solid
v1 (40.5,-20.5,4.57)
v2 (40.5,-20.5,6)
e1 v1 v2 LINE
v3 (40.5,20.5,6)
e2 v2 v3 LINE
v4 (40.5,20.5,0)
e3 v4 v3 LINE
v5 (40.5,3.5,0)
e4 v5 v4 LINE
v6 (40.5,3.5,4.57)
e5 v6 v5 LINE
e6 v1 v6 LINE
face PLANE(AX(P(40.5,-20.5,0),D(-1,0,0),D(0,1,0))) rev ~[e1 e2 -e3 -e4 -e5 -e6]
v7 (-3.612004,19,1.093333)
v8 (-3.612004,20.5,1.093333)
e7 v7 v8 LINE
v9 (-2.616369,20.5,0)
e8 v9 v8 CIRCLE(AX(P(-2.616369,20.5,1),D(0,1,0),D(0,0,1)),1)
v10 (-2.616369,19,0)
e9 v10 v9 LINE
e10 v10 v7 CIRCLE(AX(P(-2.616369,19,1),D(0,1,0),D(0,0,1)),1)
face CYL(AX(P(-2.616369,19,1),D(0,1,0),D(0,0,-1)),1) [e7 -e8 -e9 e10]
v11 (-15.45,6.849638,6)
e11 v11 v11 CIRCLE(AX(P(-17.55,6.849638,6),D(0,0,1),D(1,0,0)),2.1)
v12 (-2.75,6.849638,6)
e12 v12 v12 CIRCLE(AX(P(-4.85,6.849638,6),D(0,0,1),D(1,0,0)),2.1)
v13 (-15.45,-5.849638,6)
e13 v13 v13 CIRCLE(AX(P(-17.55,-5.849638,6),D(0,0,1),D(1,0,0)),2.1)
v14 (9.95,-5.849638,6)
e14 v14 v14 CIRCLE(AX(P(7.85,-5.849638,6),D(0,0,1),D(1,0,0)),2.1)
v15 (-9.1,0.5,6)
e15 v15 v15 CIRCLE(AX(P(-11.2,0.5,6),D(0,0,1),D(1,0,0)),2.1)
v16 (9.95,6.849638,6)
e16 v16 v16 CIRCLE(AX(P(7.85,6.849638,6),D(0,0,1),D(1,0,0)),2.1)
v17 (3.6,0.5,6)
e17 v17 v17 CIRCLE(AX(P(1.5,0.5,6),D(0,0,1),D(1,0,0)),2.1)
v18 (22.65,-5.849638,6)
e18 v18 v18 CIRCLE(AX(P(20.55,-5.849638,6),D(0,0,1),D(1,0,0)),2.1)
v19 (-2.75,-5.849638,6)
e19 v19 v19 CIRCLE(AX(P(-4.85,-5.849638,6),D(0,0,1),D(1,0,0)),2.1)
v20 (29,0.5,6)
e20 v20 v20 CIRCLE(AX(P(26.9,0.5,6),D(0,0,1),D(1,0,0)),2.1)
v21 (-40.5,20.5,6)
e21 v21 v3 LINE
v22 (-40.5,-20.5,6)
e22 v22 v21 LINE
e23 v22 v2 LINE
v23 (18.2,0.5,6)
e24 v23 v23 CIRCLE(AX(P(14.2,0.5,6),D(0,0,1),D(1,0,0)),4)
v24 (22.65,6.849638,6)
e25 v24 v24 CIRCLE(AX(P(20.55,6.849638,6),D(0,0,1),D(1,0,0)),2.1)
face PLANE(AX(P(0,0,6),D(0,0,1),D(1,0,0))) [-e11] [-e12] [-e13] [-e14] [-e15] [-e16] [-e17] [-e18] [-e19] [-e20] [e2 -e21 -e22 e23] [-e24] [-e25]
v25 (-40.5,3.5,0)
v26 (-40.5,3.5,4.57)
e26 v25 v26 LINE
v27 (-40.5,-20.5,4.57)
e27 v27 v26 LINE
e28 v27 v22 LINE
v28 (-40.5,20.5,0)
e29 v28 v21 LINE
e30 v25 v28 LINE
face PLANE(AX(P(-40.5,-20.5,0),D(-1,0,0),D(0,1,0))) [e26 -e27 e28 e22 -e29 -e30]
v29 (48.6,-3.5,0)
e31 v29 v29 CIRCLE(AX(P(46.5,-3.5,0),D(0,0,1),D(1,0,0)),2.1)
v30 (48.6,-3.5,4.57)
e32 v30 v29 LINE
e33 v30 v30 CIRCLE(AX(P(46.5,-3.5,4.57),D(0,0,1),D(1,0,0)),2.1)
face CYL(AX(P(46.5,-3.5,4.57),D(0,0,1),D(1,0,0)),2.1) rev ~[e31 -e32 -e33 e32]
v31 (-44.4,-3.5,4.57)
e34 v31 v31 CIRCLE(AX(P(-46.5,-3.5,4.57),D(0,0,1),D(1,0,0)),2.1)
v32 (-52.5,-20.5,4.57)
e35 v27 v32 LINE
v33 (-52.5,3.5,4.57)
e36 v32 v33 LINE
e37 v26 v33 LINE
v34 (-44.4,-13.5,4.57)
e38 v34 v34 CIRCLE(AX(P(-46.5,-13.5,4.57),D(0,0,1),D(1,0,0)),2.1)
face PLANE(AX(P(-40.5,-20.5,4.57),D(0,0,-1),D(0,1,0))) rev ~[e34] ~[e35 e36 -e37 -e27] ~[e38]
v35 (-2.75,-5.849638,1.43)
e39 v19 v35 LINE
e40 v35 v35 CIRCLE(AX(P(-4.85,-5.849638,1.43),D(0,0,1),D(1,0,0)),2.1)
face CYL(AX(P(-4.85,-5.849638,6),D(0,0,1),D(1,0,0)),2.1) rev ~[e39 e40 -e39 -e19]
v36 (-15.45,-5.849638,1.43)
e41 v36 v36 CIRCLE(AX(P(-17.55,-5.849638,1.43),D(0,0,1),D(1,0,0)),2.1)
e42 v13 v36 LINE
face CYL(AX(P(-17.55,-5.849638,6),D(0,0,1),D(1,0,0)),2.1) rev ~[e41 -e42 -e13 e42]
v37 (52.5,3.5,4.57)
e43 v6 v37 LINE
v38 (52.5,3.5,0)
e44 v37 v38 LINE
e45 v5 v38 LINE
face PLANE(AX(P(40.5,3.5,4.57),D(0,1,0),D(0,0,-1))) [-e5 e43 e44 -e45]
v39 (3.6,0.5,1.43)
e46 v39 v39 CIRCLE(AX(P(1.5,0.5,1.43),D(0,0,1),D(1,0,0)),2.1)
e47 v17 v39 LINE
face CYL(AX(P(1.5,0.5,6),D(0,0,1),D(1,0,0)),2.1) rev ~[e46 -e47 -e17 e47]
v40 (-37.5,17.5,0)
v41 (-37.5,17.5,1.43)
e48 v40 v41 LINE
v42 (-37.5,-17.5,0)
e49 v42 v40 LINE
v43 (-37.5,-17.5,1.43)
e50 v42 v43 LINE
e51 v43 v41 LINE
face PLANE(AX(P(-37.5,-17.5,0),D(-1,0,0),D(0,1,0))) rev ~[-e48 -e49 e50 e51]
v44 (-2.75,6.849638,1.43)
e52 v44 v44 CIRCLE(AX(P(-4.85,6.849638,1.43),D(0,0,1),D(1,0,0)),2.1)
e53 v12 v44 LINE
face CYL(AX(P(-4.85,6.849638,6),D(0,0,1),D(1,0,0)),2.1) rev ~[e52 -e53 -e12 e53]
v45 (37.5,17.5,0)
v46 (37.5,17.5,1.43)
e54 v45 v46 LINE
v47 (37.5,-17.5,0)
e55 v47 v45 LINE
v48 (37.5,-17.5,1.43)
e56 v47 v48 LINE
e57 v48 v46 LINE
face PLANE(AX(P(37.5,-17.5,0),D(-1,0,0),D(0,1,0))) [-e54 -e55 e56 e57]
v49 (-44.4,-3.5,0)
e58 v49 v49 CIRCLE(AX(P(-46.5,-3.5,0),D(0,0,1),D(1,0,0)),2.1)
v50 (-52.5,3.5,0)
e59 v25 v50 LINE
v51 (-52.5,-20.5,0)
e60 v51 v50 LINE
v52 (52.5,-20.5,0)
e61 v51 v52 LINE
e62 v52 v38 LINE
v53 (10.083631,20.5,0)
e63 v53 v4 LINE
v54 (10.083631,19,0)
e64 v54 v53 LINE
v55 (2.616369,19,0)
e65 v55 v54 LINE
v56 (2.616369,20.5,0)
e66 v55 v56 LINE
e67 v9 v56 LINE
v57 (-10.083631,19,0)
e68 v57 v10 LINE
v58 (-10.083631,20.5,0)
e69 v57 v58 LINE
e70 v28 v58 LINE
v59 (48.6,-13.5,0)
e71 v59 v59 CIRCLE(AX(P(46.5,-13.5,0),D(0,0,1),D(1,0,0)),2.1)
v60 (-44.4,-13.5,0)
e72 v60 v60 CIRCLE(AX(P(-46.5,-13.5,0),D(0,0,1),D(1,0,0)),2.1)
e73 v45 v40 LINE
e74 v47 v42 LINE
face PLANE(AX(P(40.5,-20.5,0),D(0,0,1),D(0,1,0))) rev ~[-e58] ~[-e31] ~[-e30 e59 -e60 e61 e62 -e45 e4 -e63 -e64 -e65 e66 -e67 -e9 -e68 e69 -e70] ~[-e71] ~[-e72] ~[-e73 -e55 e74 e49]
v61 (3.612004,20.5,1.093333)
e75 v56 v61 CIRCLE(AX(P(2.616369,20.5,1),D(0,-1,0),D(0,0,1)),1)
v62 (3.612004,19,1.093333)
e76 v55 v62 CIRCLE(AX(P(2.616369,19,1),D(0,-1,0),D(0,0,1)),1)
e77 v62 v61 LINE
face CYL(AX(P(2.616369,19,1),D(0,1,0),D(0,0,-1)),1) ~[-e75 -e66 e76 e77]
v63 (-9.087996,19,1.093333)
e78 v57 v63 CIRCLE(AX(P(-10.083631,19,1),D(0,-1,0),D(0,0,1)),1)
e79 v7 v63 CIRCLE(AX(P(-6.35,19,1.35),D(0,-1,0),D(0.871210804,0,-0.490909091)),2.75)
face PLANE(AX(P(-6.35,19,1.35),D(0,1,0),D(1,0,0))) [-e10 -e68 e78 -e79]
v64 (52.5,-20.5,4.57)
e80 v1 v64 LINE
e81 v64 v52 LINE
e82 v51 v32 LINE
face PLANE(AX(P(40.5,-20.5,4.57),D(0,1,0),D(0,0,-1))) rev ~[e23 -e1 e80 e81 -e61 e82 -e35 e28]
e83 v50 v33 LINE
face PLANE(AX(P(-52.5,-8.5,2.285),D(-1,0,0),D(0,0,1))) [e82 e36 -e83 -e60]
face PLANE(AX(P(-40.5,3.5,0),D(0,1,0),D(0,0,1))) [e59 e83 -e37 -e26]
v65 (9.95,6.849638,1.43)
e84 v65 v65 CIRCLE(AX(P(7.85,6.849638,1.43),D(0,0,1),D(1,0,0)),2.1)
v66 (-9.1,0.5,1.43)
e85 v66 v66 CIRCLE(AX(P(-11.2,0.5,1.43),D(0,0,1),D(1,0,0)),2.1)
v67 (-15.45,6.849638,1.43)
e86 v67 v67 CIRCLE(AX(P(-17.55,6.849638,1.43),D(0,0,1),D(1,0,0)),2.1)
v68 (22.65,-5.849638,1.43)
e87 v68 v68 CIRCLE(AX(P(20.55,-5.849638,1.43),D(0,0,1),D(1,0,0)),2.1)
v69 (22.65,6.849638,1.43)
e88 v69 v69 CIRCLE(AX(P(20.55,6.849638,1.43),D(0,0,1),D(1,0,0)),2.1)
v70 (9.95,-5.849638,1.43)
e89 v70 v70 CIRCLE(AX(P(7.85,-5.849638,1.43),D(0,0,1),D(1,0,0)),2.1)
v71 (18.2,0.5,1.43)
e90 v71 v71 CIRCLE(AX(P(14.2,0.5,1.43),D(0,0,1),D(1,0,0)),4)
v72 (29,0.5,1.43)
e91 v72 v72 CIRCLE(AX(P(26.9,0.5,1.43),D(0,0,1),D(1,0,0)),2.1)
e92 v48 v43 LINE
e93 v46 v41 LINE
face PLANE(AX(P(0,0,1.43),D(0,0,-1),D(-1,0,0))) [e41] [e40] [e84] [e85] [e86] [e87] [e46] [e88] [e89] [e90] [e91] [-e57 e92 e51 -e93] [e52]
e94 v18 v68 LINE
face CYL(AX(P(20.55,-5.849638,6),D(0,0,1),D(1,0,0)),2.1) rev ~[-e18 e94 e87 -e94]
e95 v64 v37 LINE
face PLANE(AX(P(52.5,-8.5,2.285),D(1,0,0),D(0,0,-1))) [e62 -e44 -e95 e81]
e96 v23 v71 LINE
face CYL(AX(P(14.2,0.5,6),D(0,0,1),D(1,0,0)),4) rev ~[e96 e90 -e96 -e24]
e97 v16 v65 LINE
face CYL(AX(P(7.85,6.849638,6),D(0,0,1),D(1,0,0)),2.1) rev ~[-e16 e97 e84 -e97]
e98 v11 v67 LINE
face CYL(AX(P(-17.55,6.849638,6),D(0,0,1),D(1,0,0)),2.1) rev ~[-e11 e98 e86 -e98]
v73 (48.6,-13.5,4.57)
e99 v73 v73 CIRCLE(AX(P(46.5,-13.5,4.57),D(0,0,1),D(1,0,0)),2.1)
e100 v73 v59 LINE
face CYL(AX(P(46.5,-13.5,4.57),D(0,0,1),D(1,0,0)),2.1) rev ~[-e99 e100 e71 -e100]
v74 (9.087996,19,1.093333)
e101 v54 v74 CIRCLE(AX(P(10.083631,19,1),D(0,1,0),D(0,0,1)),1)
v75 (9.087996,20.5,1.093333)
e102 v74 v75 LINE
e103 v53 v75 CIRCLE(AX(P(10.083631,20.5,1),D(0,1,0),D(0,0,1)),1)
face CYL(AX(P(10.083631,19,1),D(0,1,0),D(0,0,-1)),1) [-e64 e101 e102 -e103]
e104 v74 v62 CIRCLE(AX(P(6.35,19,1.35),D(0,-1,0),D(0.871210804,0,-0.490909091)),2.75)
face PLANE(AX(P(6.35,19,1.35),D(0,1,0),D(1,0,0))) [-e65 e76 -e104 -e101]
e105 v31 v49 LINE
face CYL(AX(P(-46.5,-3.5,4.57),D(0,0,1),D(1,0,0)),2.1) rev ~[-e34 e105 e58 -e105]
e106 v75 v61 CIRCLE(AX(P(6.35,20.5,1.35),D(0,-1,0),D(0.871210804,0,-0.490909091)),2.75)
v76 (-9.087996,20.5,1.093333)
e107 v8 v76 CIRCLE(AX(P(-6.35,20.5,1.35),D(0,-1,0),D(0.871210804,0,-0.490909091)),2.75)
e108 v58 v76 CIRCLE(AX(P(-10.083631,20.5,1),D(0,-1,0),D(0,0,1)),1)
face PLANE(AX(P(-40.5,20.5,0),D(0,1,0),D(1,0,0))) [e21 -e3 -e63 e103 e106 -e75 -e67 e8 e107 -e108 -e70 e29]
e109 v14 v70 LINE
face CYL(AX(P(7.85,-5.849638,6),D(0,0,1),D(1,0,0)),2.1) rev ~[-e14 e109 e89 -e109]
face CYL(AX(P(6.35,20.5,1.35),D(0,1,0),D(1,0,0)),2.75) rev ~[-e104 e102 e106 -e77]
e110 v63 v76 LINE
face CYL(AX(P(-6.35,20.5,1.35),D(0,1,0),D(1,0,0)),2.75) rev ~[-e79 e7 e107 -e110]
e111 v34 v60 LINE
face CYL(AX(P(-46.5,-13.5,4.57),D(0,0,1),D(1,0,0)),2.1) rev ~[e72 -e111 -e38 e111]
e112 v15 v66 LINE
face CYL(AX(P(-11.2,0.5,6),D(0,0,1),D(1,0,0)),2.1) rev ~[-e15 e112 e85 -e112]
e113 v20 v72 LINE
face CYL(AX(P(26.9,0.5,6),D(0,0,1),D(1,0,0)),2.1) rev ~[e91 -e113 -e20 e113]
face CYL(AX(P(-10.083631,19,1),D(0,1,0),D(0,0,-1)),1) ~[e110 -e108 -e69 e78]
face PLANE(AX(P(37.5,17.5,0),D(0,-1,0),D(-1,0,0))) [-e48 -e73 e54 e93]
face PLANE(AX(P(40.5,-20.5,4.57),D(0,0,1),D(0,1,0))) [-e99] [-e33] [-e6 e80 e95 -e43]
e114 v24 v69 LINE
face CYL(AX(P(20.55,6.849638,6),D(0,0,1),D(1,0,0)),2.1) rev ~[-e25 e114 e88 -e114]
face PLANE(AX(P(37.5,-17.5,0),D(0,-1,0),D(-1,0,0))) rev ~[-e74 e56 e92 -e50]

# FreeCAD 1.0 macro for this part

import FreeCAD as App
import Part
import Sketcher
from FreeCAD import Vector


def edges_at(feature, points):
    """Names of the edges that pass closest to the given points."""
    edges = feature.Shape.Edges
    near = lambda p: min(range(len(edges)), key=lambda i: edges[i].distToShape(Part.Vertex(*p))[0])
    return sorted({f"Edge{near(p) + 1}" for p in points})

doc = App.newDocument("Part")
body = doc.addObject("PartDesign::Body", "Body")

sketch1 = doc.addObject("Sketcher::SketchObject", "Sketch")
body.addObject(sketch1)
sketch1.AttachmentSupport = (doc.XY_Plane, [""])
sketch1.MapMode = "FlatFace"
sketch1.addGeometry([
    Part.LineSegment(Vector(-40.5, 20.5, 0), Vector(-40.5, -20.5, 0)),
    Part.LineSegment(Vector(-40.5, -20.5, 0), Vector(40.5, -20.5, 0)),
    Part.LineSegment(Vector(40.5, -20.5, 0), Vector(40.5, 20.5, 0)),
    Part.LineSegment(Vector(40.5, 20.5, 0), Vector(-40.5, 20.5, 0)),
], False)
sketch1.addConstraint([
    Sketcher.Constraint("Coincident", 0, 2, 1, 1),
    Sketcher.Constraint("Coincident", 1, 2, 2, 1),
    Sketcher.Constraint("Coincident", 2, 2, 3, 1),
    Sketcher.Constraint("Coincident", 3, 2, 0, 1),
    Sketcher.Constraint("Vertical", 0),
    Sketcher.Constraint("Horizontal", 1),
    Sketcher.Constraint("Vertical", 2),
    Sketcher.Constraint("Horizontal", 3),
    Sketcher.Constraint("Symmetric", 0, 2, 2, 2, -1, 1),
    Sketcher.Constraint("DistanceX", 1, 1, 1, 2, 81.0),
    Sketcher.Constraint("DistanceY", 0, 2, 0, 1, 41.0),
])
pad1 = doc.addObject("PartDesign::Pad", "Pad")
body.addObject(pad1)
pad1.Profile = sketch1
pad1.Length = 6

sketch2 = doc.addObject("Sketcher::SketchObject", "Sketch001")
body.addObject(sketch2)
sketch2.AttachmentSupport = (doc.XY_Plane, [""])
sketch2.MapMode = "FlatFace"
sketch2.addGeometry([
    Part.LineSegment(Vector(37.5, 17.5, 0), Vector(37.5, -17.5, 0)),
    Part.LineSegment(Vector(37.5, -17.5, 0), Vector(-37.5, -17.5, 0)),
    Part.LineSegment(Vector(-37.5, -17.5, 0), Vector(-37.5, 17.5, 0)),
    Part.LineSegment(Vector(-37.5, 17.5, 0), Vector(37.5, 17.5, 0)),
], False)
sketch2.addConstraint([
    Sketcher.Constraint("Coincident", 0, 2, 1, 1),
    Sketcher.Constraint("Coincident", 1, 2, 2, 1),
    Sketcher.Constraint("Coincident", 2, 2, 3, 1),
    Sketcher.Constraint("Coincident", 3, 2, 0, 1),
    Sketcher.Constraint("Vertical", 0),
    Sketcher.Constraint("Horizontal", 1),
    Sketcher.Constraint("Vertical", 2),
    Sketcher.Constraint("Horizontal", 3),
    Sketcher.Constraint("Symmetric", 0, 2, 2, 2, -1, 1),
    Sketcher.Constraint("DistanceX", 1, 2, 1, 1, 75.0),
    Sketcher.Constraint("DistanceY", 0, 2, 0, 1, 35.0),
])
pocket1 = doc.addObject("PartDesign::Pocket", "Pocket")
body.addObject(pocket1)
pocket1.Profile = sketch2
pocket1.Length = 1.43
pocket1.Reversed = True

sketch3 = doc.addObject("Sketcher::SketchObject", "Sketch002")
body.addObject(sketch3)
sketch3.AttachmentSupport = (doc.XY_Plane, [""])
sketch3.MapMode = "FlatFace"
sketch3.AttachmentOffset = App.Placement(Vector(0, 0, 6), App.Rotation())
sketch3.addGeometry([
    Part.Circle(Vector(26.9, 0.5, 0), Vector(0, 0, 1), 2.1),
    Part.Circle(Vector(20.55, 6.849638, 0), Vector(0, 0, 1), 2.1),
    Part.Circle(Vector(7.85, 6.849638, 0), Vector(0, 0, 1), 2.1),
    Part.Circle(Vector(7.85, -5.849638, 0), Vector(0, 0, 1), 2.1),
    Part.Circle(Vector(20.55, -5.849638, 0), Vector(0, 0, 1), 2.1),
    Part.Circle(Vector(1.5, 0.5, 0), Vector(0, 0, 1), 2.1),
    Part.Circle(Vector(-4.85, 6.849638, 0), Vector(0, 0, 1), 2.1),
    Part.Circle(Vector(-4.85, -5.849638, 0), Vector(0, 0, 1), 2.1),
    Part.Circle(Vector(-11.2, 0.5, 0), Vector(0, 0, 1), 2.1),
    Part.Circle(Vector(-17.55, 6.849638, 0), Vector(0, 0, 1), 2.1),
    Part.Circle(Vector(-17.55, -5.849638, 0), Vector(0, 0, 1), 2.1),
    Part.Circle(Vector(14.2, 0.5, 0), Vector(0, 0, 1), 4),
], False)
sketch3.addConstraint([
    Sketcher.Constraint("Equal", 0, 1),
    Sketcher.Constraint("Equal", 1, 2),
    Sketcher.Constraint("Equal", 2, 3),
    Sketcher.Constraint("Equal", 3, 4),
    Sketcher.Constraint("Equal", 4, 5),
    Sketcher.Constraint("Equal", 5, 6),
    Sketcher.Constraint("Equal", 6, 7),
    Sketcher.Constraint("Equal", 7, 8),
    Sketcher.Constraint("Equal", 8, 9),
    Sketcher.Constraint("Equal", 9, 10),
    Sketcher.Constraint("Horizontal", 1, 3, 2, 3),
    Sketcher.Constraint("Horizontal", 3, 3, 4, 3),
    Sketcher.Constraint("Horizontal", 0, 3, 5, 3),
    Sketcher.Constraint("Horizontal", 2, 3, 6, 3),
    Sketcher.Constraint("Horizontal", 4, 3, 7, 3),
    Sketcher.Constraint("Horizontal", 5, 3, 8, 3),
    Sketcher.Constraint("Horizontal", 6, 3, 9, 3),
    Sketcher.Constraint("Horizontal", 7, 3, 10, 3),
    Sketcher.Constraint("Horizontal", 8, 3, 11, 3),
    Sketcher.Constraint("Vertical", 2, 3, 3, 3),
    Sketcher.Constraint("Vertical", 1, 3, 4, 3),
    Sketcher.Constraint("Vertical", 6, 3, 7, 3),
    Sketcher.Constraint("Vertical", 9, 3, 10, 3),
    Sketcher.Constraint("Diameter", 11, 8.0),
    Sketcher.Constraint("Diameter", 0, 4.2),
    Sketcher.Constraint("DistanceX", -1, 1, 0, 3, 26.9),
    Sketcher.Constraint("DistanceY", -1, 1, 0, 3, 0.5),
    Sketcher.Constraint("DistanceX", -1, 1, 5, 3, 1.5),
    Sketcher.Constraint("DistanceX", 8, 3, -1, 1, 11.2),
    Sketcher.Constraint("DistanceX", -1, 1, 11, 3, 14.2),
    Sketcher.Constraint("DistanceX", 2, 3, 1, 3, 12.7),
    Sketcher.Constraint("DistanceX", 6, 3, 2, 3, 12.7),
    Sketcher.Constraint("DistanceX", 9, 3, 6, 3, 12.7),
    Sketcher.Constraint("DistanceX", -1, 1, 1, 3, 20.55),
    Sketcher.Constraint("DistanceY", -1, 1, 1, 3, 6.849638),
    Sketcher.Constraint("DistanceY", 3, 3, -1, 1, 5.849638),
])
pocket2 = doc.addObject("PartDesign::Pocket", "Pocket001")
body.addObject(pocket2)
pocket2.Profile = sketch3
pocket2.Type = "ThroughAll"

sketch4 = doc.addObject("Sketcher::SketchObject", "Sketch003")
body.addObject(sketch4)
sketch4.AttachmentSupport = (doc.XZ_Plane, [""])
sketch4.MapMode = "FlatFace"
sketch4.AttachmentOffset = App.Placement(Vector(0, 0, -20.5), App.Rotation())
sketch4.addGeometry([
    Part.Circle(Vector(6.35, 1.35, 0), Vector(0, 0, 1), 2.75),
    Part.Circle(Vector(-6.35, 1.35, 0), Vector(0, 0, 1), 2.75),
], False)
sketch4.addConstraint([
    Sketcher.Constraint("Equal", 0, 1),
    Sketcher.Constraint("Symmetric", 0, 3, 1, 3, -2),
    Sketcher.Constraint("Diameter", 0, 5.5),
    Sketcher.Constraint("DistanceX", 1, 3, 0, 3, 12.7),
    Sketcher.Constraint("DistanceY", -1, 1, 0, 3, 1.35),
])
pocket3 = doc.addObject("PartDesign::Pocket", "Pocket002")
body.addObject(pocket3)
pocket3.Profile = sketch4
pocket3.Length = 1.5
pocket3.Reversed = True
doc.recompute()

fillet = doc.addObject("PartDesign::Fillet", "Fillet")
body.addObject(fillet)
fillet.Base = (pocket3, edges_at(pocket3, [
    (-8.746, 19.75, 0),
    (-3.954, 19.75, 0),
    (3.954, 19.75, 0),
    (8.746, 19.75, 0),
]))
fillet.Radius = 1

sketch5 = doc.addObject("Sketcher::SketchObject", "Sketch004")
body.addObject(sketch5)
sketch5.AttachmentSupport = (doc.YZ_Plane, [""])
sketch5.MapMode = "FlatFace"
sketch5.AttachmentOffset = App.Placement(Vector(0, 0, -40.5), App.Rotation())
sketch5.addGeometry([
    Part.LineSegment(Vector(3.5, 0, 0), Vector(-20.5, 0, 0)),
    Part.LineSegment(Vector(-20.5, 0, 0), Vector(-20.5, 4.57, 0)),
    Part.LineSegment(Vector(-20.5, 4.57, 0), Vector(3.5, 4.57, 0)),
    Part.LineSegment(Vector(3.5, 4.57, 0), Vector(3.5, 0, 0)),
], False)
sketch5.addConstraint([
    Sketcher.Constraint("Coincident", 0, 2, 1, 1),
    Sketcher.Constraint("Coincident", 1, 2, 2, 1),
    Sketcher.Constraint("Coincident", 2, 2, 3, 1),
    Sketcher.Constraint("Coincident", 3, 2, 0, 1),
    Sketcher.Constraint("Horizontal", 0),
    Sketcher.Constraint("Vertical", 1),
    Sketcher.Constraint("Horizontal", 2),
    Sketcher.Constraint("Vertical", 3),
    Sketcher.Constraint("PointOnObject", 0, 2, -1),
    Sketcher.Constraint("DistanceX", 0, 2, 0, 1, 24.0),
    Sketcher.Constraint("DistanceY", 1, 1, 1, 2, 4.57),
    Sketcher.Constraint("DistanceX", 0, 2, -1, 1, 20.5),
])
pad2 = doc.addObject("PartDesign::Pad", "Pad001")
body.addObject(pad2)
pad2.Profile = sketch5
pad2.Length = 12
pad2.Reversed = True

sketch6 = doc.addObject("Sketcher::SketchObject", "Sketch005")
body.addObject(sketch6)
sketch6.AttachmentSupport = (doc.YZ_Plane, [""])
sketch6.MapMode = "FlatFace"
sketch6.AttachmentOffset = App.Placement(Vector(0, 0, 40.5), App.Rotation())
sketch6.addGeometry([
    Part.LineSegment(Vector(3.5, 4.57, 0), Vector(-20.5, 4.57, 0)),
    Part.LineSegment(Vector(-20.5, 4.57, 0), Vector(-20.5, 0, 0)),
    Part.LineSegment(Vector(-20.5, 0, 0), Vector(3.5, 0, 0)),
    Part.LineSegment(Vector(3.5, 0, 0), Vector(3.5, 4.57, 0)),
], False)
sketch6.addConstraint([
    Sketcher.Constraint("Coincident", 0, 2, 1, 1),
    Sketcher.Constraint("Coincident", 1, 2, 2, 1),
    Sketcher.Constraint("Coincident", 2, 2, 3, 1),
    Sketcher.Constraint("Coincident", 3, 2, 0, 1),
    Sketcher.Constraint("Horizontal", 0),
    Sketcher.Constraint("Vertical", 1),
    Sketcher.Constraint("Horizontal", 2),
    Sketcher.Constraint("Vertical", 3),
    Sketcher.Constraint("PointOnObject", 1, 2, -1),
    Sketcher.Constraint("DistanceX", 0, 2, 0, 1, 24.0),
    Sketcher.Constraint("DistanceY", 1, 2, 1, 1, 4.57),
    Sketcher.Constraint("DistanceX", 0, 2, -1, 1, 20.5),
])
pad3 = doc.addObject("PartDesign::Pad", "Pad002")
body.addObject(pad3)
pad3.Profile = sketch6
pad3.Length = 12

sketch7 = doc.addObject("Sketcher::SketchObject", "Sketch006")
body.addObject(sketch7)
sketch7.AttachmentSupport = (doc.XY_Plane, [""])
sketch7.MapMode = "FlatFace"
sketch7.AttachmentOffset = App.Placement(Vector(0, 0, 4.57), App.Rotation())
sketch7.addGeometry([
    Part.Circle(Vector(-46.5, -3.5, 0), Vector(0, 0, 1), 2.1),
    Part.Circle(Vector(-46.5, -13.5, 0), Vector(0, 0, 1), 2.1),
    Part.Circle(Vector(46.5, -3.5, 0), Vector(0, 0, 1), 2.1),
    Part.Circle(Vector(46.5, -13.5, 0), Vector(0, 0, 1), 2.1),
], False)
sketch7.addConstraint([
    Sketcher.Constraint("Equal", 0, 1),
    Sketcher.Constraint("Equal", 1, 2),
    Sketcher.Constraint("Equal", 2, 3),
    Sketcher.Constraint("Symmetric", 0, 3, 2, 3, -2),
    Sketcher.Constraint("Symmetric", 1, 3, 3, 3, -2),
    Sketcher.Constraint("Vertical", 0, 3, 1, 3),
    Sketcher.Constraint("Diameter", 0, 4.2),
    Sketcher.Constraint("DistanceY", 1, 3, 0, 3, 10.0),
    Sketcher.Constraint("DistanceX", 0, 3, 2, 3, 93.0),
    Sketcher.Constraint("DistanceY", 0, 3, -1, 1, 3.5),
])
pocket4 = doc.addObject("PartDesign::Pocket", "Pocket003")
body.addObject(pocket4)
pocket4.Profile = sketch7
pocket4.Type = "ThroughAll"

doc.recompute()
